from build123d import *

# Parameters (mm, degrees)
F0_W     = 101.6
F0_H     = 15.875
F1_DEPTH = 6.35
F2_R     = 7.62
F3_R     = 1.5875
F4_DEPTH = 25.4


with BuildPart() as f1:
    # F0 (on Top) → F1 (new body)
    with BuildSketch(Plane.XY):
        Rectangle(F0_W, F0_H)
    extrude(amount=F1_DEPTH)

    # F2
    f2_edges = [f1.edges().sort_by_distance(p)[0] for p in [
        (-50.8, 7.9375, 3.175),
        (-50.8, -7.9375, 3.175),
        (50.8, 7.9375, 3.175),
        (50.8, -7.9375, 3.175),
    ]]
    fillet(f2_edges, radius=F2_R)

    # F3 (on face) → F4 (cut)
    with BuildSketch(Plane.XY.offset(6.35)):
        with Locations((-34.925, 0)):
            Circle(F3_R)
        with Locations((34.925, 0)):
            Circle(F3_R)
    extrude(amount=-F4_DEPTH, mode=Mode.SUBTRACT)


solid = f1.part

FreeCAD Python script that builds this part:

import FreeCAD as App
import Part
import Sketcher
from FreeCAD import Vector
Q = App.Units.Quantity


def edges_at(feature, points):
    """Names of the edges that pass closest to the given points."""
    edges = feature.Shape.Edges
    near = lambda p: min(range(len(edges)), key=lambda i: edges[i].distToShape(Part.Vertex(*p))[0])
    return sorted({f"Edge{near(p) + 1}" for p in points})


def add_polygon(sketch, points):
    """Adds a closed chain of lines whose ends are joined by coincident constraints."""
    first, n = sketch.GeometryCount, len(points)
    for a, b in zip(points, points[1:] + points[:1]):
        sketch.addGeometry(Part.LineSegment(App.Vector(*a, 0), App.Vector(*b, 0)), False)
    for i in range(n):
        sketch.addConstraint(Sketcher.Constraint("Coincident", first + i, 2, first + (i + 1) % n, 1))

doc = App.newDocument("Part")
params = doc.addObject("Spreadsheet::Sheet", "Params")
for row, (alias, value) in enumerate([
    ("sketch1_width", "4 in"),
    ("sketch1_height", "0.625 in"),
    ("pad1_length", "0.25 in"),
    ("fillet_radius", "0.3 in"),
    ("sketch2_diameter", "0.125 in"),
    ("pocket1_length", "1 in"),
], start=1):
    params.set(f"A{row}", alias)
    params.set(f"B{row}", "=" + value)
    params.setAlias(f"B{row}", alias)

body = doc.addObject("PartDesign::Body", "Body")

# Sketch on XY plane
sketch1 = body.newObject("Sketcher::SketchObject", "Sketch")
sketch1.AttachmentSupport = (doc.getObject("XY_Plane"), [""])
sketch1.MapMode = "FlatFace"
add_polygon(sketch1, [(-51, 8), (-51, -8), (51, -8), (51, 8)])  # lines 0-3
sketch1.addConstraint([
    Sketcher.Constraint("Vertical", 0),
    Sketcher.Constraint("Horizontal", 1),
    Sketcher.Constraint("Vertical", 2),
    Sketcher.Constraint("Horizontal", 3),
    Sketcher.Constraint("Symmetric", 0, 2, 2, 2, -1, 1),
    Sketcher.Constraint("DistanceX", 1, 1, 1, 2, Q("4 in")),
    Sketcher.Constraint("DistanceY", 0, 2, 0, 1, Q("0.625 in")),
])
sketch1.setExpression("Constraints[9]", "Params.sketch1_width")
sketch1.setExpression("Constraints[10]", "Params.sketch1_height")
pad1 = body.newObject("PartDesign::Pad", "Pad")
pad1.Profile = sketch1
pad1.setExpression("Length", "Params.pad1_length")
doc.recompute()

fillet = body.newObject("PartDesign::Fillet", "Fillet")
fillet.Base = (pad1, edges_at(pad1, [
    (-50.8, 7.938, 3.175),
    (-50.8, -7.938, 3.175),
    (50.8, 7.938, 3.175),
    (50.8, -7.938, 3.175),
]))
fillet.setExpression("Radius", "Params.fillet_radius")

# Sketch on XY plane
sketch2 = body.newObject("Sketcher::SketchObject", "Sketch001")
sketch2.AttachmentSupport = (doc.getObject("XY_Plane"), [""])
sketch2.MapMode = "FlatFace"
sketch2.AttachmentOffset = App.Placement(Vector(0, 0, 0.25 * 25.4), App.Rotation())
sketch2.addGeometry([
    Part.Circle(Vector(-34.9, 0, 0), Vector(0, 0, 1), 1.6),
    Part.Circle(Vector(34.9, 0, 0), Vector(0, 0, 1), 1.6),
], False)
sketch2.addConstraint([
    Sketcher.Constraint("Equal", 0, 1),
    Sketcher.Constraint("Symmetric", 0, 3, 1, 3, -1, 1),
    Sketcher.Constraint("PointOnObject", 0, 3, -1),
    Sketcher.Constraint("Diameter", 0, Q("0.125 in")),
    Sketcher.Constraint("DistanceX", 0, 3, 1, 3, Q("2.75 in")),
])
sketch2.setExpression("Constraints[3]", "Params.sketch2_diameter")
pocket1 = body.newObject("PartDesign::Pocket", "Pocket")
pocket1.Profile = sketch2
pocket1.setExpression("Length", "Params.pocket1_length")

doc.recompute()
